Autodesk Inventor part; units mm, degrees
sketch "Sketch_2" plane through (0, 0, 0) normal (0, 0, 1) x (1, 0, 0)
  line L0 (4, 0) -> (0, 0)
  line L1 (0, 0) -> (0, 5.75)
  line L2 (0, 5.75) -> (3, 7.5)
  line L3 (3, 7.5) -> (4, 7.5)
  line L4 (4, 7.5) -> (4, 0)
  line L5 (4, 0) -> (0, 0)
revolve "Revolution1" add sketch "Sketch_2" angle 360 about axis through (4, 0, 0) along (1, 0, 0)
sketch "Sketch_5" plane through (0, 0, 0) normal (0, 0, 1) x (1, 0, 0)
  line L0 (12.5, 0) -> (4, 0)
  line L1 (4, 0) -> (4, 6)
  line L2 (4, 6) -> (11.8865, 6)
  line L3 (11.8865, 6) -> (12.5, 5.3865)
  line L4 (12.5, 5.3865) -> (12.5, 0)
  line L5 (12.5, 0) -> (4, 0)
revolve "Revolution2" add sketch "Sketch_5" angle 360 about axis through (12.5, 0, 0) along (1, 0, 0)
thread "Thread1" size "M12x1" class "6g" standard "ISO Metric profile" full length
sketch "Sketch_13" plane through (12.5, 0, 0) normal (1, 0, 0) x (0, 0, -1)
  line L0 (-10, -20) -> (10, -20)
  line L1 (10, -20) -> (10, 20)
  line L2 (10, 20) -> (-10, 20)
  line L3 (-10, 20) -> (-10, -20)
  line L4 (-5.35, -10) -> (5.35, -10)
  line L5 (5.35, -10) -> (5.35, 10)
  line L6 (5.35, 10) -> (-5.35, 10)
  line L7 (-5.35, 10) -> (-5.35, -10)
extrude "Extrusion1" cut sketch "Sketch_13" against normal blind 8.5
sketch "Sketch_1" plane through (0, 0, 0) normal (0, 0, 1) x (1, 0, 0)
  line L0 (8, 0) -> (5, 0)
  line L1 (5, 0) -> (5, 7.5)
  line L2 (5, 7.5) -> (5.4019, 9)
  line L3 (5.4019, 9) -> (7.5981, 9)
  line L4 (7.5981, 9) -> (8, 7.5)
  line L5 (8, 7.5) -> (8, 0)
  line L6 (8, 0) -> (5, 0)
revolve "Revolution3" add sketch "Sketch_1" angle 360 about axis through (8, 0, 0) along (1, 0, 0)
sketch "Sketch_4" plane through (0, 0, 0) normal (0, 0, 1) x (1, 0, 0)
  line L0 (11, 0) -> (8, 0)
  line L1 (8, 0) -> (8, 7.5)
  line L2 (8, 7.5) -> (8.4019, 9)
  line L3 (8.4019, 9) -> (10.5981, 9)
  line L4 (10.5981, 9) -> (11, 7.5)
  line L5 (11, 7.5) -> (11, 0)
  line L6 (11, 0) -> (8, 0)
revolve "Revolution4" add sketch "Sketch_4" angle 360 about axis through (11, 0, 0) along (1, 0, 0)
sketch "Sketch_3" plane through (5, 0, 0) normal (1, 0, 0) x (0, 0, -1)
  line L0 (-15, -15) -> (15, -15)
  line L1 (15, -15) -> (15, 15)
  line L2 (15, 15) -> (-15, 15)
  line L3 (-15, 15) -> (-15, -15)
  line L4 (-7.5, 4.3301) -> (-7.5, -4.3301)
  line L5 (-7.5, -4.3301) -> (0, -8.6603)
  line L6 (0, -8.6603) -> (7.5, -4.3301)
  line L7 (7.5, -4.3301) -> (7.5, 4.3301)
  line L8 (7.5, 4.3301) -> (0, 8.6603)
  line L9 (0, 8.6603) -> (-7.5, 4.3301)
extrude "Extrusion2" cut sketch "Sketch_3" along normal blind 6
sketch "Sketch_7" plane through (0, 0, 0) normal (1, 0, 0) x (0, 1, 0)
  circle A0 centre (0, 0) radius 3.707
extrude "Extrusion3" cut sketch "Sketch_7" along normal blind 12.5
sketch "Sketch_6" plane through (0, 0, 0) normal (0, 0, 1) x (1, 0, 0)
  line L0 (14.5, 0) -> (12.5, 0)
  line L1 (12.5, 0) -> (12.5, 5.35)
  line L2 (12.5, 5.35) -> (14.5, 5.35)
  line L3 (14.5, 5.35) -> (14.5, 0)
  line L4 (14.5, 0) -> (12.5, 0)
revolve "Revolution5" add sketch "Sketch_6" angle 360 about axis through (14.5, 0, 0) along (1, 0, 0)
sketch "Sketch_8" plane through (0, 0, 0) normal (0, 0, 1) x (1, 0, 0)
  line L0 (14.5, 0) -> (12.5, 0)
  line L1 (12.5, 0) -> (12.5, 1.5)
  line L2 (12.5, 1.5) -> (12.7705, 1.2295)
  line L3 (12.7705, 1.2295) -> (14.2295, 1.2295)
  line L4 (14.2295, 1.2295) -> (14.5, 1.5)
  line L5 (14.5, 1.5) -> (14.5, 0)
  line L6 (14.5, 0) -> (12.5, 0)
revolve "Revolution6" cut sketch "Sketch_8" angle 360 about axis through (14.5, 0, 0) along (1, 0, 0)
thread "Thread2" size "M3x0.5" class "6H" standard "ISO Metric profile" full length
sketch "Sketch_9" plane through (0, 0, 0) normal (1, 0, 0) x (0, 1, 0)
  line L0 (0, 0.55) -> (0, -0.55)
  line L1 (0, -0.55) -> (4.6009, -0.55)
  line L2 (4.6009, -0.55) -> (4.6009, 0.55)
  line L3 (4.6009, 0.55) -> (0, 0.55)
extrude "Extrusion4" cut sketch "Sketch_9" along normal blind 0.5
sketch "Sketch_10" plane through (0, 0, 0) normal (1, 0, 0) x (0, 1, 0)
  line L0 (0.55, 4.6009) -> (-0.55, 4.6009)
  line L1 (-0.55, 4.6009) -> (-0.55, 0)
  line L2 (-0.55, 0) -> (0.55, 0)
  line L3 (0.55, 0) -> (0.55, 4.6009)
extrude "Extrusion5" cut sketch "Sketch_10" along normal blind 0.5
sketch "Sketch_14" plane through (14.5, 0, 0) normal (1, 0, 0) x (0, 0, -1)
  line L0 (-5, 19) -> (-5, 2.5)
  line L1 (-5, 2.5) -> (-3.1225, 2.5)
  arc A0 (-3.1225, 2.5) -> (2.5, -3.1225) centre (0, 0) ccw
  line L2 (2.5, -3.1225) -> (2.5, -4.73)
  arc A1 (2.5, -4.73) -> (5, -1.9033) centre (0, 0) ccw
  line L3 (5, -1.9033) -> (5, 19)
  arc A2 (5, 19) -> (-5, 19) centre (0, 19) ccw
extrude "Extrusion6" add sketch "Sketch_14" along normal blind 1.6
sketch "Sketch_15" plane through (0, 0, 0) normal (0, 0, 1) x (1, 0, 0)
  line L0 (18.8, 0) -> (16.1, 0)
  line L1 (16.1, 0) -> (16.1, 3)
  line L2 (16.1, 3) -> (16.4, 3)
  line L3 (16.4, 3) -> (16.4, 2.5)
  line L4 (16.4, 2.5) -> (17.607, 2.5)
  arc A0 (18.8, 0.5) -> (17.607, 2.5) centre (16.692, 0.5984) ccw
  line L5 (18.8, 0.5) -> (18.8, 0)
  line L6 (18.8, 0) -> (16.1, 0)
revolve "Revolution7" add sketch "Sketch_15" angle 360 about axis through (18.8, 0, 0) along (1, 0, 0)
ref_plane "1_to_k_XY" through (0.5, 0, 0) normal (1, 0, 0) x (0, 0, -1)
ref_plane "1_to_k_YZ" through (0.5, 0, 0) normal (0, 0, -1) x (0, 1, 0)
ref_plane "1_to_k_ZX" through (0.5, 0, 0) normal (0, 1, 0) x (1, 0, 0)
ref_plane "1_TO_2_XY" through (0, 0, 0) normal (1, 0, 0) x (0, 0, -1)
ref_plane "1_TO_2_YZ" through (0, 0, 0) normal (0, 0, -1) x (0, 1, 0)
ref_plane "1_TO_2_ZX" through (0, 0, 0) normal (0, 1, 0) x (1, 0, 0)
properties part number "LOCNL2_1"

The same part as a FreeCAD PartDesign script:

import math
import FreeCAD as App
import Part
import Sketcher
Q = App.Units.Quantity

doc = App.newDocument("Part")
params = doc.addObject("Spreadsheet::Sheet", "Params")
for row, (alias, value) in enumerate([
    ("sketch1_width", "4 mm"),
    ("sketch1_width2", "1 mm"),
    ("sketch1_height", "7.5 mm"),
    ("sketch1_height2", "5.75 mm"),
    ("revolution_angle", "360 deg"),
    ("sketch2_height", "6 mm"),
    ("sketch2_width", "8.5 mm"),
    ("revolution2_angle", "360 deg"),
    ("sketch3_width", "40 mm"),
    ("sketch3_width2", "20 mm"),
    ("sketch3_height", "10.7 mm"),
    ("pocket1_length", "8.5 mm"),
    ("sketch4_width", "3 mm"),
    ("sketch4_height", "7.5 mm"),
    ("revolution3_angle", "360 deg"),
    ("sketch5_width", "3 mm"),
    ("sketch5_height", "7.5 mm"),
    ("revolution4_angle", "360 deg"),
    ("sketch6_width", "30 mm"),
    ("pocket2_length", "6 mm"),
    ("pocket3_length", "12.5 mm"),
    ("sketch8_width", "2 mm"),
    ("sketch8_height", "5.35 mm"),
    ("revolution5_angle", "360 deg"),
    ("sketch9_width", "2 mm"),
    ("sketch9_height", "1.5 mm"),
    ("groove_angle", "360 deg"),
    ("sketch10_height", "1.1 mm"),
    ("pocket4_length", "0.5 mm"),
    ("sketch11_width", "1.1 mm"),
    ("pocket5_length", "0.5 mm"),
    ("sketch12_radius", "5 mm"),
    ("sketch12_radius2", "4 mm"),
    ("sketch12_radius3", "5.35 mm"),
    ("sketch12_width", "16.5 mm"),
    ("pad1_length", "1.6 mm"),
    ("sketch13_height", "3 mm"),
    ("sketch13_width", "2.7 mm"),
    ("sketch13_width2", "0.3 mm"),
    ("sketch13_height2", "0.5 mm"),
    ("revolution6_angle", "360 deg"),
], start=1):
    params.set(f"A{row}", alias)
    params.set(f"B{row}", "=" + value)
    params.setAlias(f"B{row}", alias)

body = doc.addObject("PartDesign::Body", "Body")

# Sketch on XY plane
sketch1 = doc.addObject("Sketcher::SketchObject", "Sketch")
body.addObject(sketch1)
sketch1.AttachmentSupport = (doc.XY_Plane, [""])
sketch1.MapMode = "FlatFace"
sketch1.addGeometry([
    Part.LineSegment(App.Vector(0, 0, 0), App.Vector(4, 0, 0)),  # 0
    Part.LineSegment(App.Vector(4, 0, 0), App.Vector(4, 7.5, 0)),  # 1
    Part.LineSegment(App.Vector(4, 7.5, 0), App.Vector(3, 7.5, 0)),  # 2
    Part.LineSegment(App.Vector(3, 7.5, 0), App.Vector(0, 5.8, 0)),  # 3
    Part.LineSegment(App.Vector(0, 5.8, 0), App.Vector(0, 0, 0)),  # 4
], False)
sketch1.addConstraint([
    Sketcher.Constraint("Coincident", 0, 2, 1, 1),
    Sketcher.Constraint("Coincident", 1, 2, 2, 1),
    Sketcher.Constraint("Coincident", 2, 2, 3, 1),
    Sketcher.Constraint("Coincident", 3, 2, 4, 1),
    Sketcher.Constraint("Coincident", 4, 2, 0, 1),
    Sketcher.Constraint("Horizontal", 0),
    Sketcher.Constraint("Vertical", 1),
    Sketcher.Constraint("Horizontal", 2),
    Sketcher.Constraint("Vertical", 4),
    Sketcher.Constraint("Coincident", 4, 2, -1, 1),
    Sketcher.Constraint("DistanceX", 0, 1, 0, 2, Q("4 mm")),
    Sketcher.Constraint("DistanceX", 2, 2, 2, 1, Q("1 mm")),
    Sketcher.Constraint("DistanceY", 1, 1, 1, 2, Q("7.5 mm")),
    Sketcher.Constraint("DistanceY", 4, 2, 4, 1, Q("5.75 mm")),
])
sketch1.setExpression("Constraints[10]", "Params.sketch1_width")
sketch1.setExpression("Constraints[11]", "Params.sketch1_width2")
sketch1.setExpression("Constraints[12]", "Params.sketch1_height")
sketch1.setExpression("Constraints[13]", "Params.sketch1_height2")
revolution = doc.addObject("PartDesign::Revolution", "Revolution")
body.addObject(revolution)
revolution.Profile = sketch1
revolution.ReferenceAxis = (sketch1, ["H_Axis"])
revolution.setExpression("Angle", "Params.revolution_angle")

# Sketch on XY plane
sketch2 = doc.addObject("Sketcher::SketchObject", "Sketch001")
body.addObject(sketch2)
sketch2.AttachmentSupport = (doc.XY_Plane, [""])
sketch2.MapMode = "FlatFace"
sketch2.addGeometry([
    Part.LineSegment(App.Vector(4, 0, 0), App.Vector(12.5, 0, 0)),  # 0
    Part.LineSegment(App.Vector(12.5, 0, 0), App.Vector(12.5, 5.4, 0)),  # 1
    Part.LineSegment(App.Vector(12.5, 5.4, 0), App.Vector(11.9, 6, 0)),  # 2
    Part.LineSegment(App.Vector(11.9, 6, 0), App.Vector(4, 6, 0)),  # 3
    Part.LineSegment(App.Vector(4, 6, 0), App.Vector(4, 0, 0)),  # 4
], False)
sketch2.addConstraint([
    Sketcher.Constraint("Coincident", 0, 2, 1, 1),
    Sketcher.Constraint("Coincident", 1, 2, 2, 1),
    Sketcher.Constraint("Coincident", 2, 2, 3, 1),
    Sketcher.Constraint("Coincident", 3, 2, 4, 1),
    Sketcher.Constraint("Coincident", 4, 2, 0, 1),
    Sketcher.Constraint("Horizontal", 0),
    Sketcher.Constraint("Vertical", 1),
    Sketcher.Constraint("Horizontal", 3),
    Sketcher.Constraint("Vertical", 4),
    Sketcher.Constraint("PointOnObject", 0, 2, -1),
    Sketcher.Constraint("DistanceY", 4, 2, 4, 1, Q("6 mm")),
    Sketcher.Constraint("Angle", 2, Q("135 deg")),
    Sketcher.Constraint("DistanceX", 0, 1, 0, 2, Q("8.5 mm")),
    Sketcher.Constraint("DistanceX", -1, 1, 3, 2, Q("4 mm")),
    Sketcher.Constraint("DistanceX", 3, 2, 3, 1, Q("7.8865 mm")),
])
sketch2.setExpression("Constraints[10]", "Params.sketch2_height")
sketch2.setExpression("Constraints[12]", "Params.sketch2_width")
revolution2 = doc.addObject("PartDesign::Revolution", "Revolution001")
body.addObject(revolution2)
revolution2.Profile = sketch2
revolution2.ReferenceAxis = (sketch2, ["H_Axis"])
revolution2.setExpression("Angle", "Params.revolution2_angle")

# Sketch on YZ plane
sketch3 = doc.addObject("Sketcher::SketchObject", "Sketch002")
body.addObject(sketch3)
sketch3.AttachmentSupport = (doc.YZ_Plane, [""])
sketch3.MapMode = "FlatFace"
sketch3.AttachmentOffset = App.Placement(App.Vector(0, 0, 12.5), App.Rotation())
sketch3.addGeometry([
    Part.LineSegment(App.Vector(20, 10, 0), App.Vector(-20, 10, 0)),  # 0
    Part.LineSegment(App.Vector(-20, 10, 0), App.Vector(-20, -10, 0)),  # 1
    Part.LineSegment(App.Vector(-20, -10, 0), App.Vector(20, -10, 0)),  # 2
    Part.LineSegment(App.Vector(20, -10, 0), App.Vector(20, 10, 0)),  # 3
    Part.LineSegment(App.Vector(-10, -5, 0), App.Vector(-10, 5, 0)),  # 4
    Part.LineSegment(App.Vector(-10, 5, 0), App.Vector(10, 5, 0)),  # 5
    Part.LineSegment(App.Vector(10, 5, 0), App.Vector(10, -5, 0)),  # 6
    Part.LineSegment(App.Vector(10, -5, 0), App.Vector(-10, -5, 0)),  # 7
], False)
sketch3.addConstraint([
    Sketcher.Constraint("Coincident", 0, 2, 1, 1),
    Sketcher.Constraint("Coincident", 1, 2, 2, 1),
    Sketcher.Constraint("Coincident", 2, 2, 3, 1),
    Sketcher.Constraint("Coincident", 3, 2, 0, 1),
    Sketcher.Constraint("Coincident", 4, 2, 5, 1),
    Sketcher.Constraint("Coincident", 5, 2, 6, 1),
    Sketcher.Constraint("Coincident", 6, 2, 7, 1),
    Sketcher.Constraint("Coincident", 7, 2, 4, 1),
    Sketcher.Constraint("Horizontal", 0),
    Sketcher.Constraint("Vertical", 1),
    Sketcher.Constraint("Horizontal", 2),
    Sketcher.Constraint("Vertical", 3),
    Sketcher.Constraint("Vertical", 4),
    Sketcher.Constraint("Horizontal", 5),
    Sketcher.Constraint("Vertical", 6),
    Sketcher.Constraint("Horizontal", 7),
    Sketcher.Constraint("Symmetric", 0, 2, 2, 2, -1, 1),
    Sketcher.Constraint("Symmetric", 4, 2, 6, 2, -1, 1),
    Sketcher.Constraint("Equal", 7, 1),
    Sketcher.Constraint("DistanceX", 0, 2, 0, 1, Q("40 mm")),
    Sketcher.Constraint("DistanceX", 5, 1, 5, 2, Q("20 mm")),
    Sketcher.Constraint("DistanceY", 4, 1, 4, 2, Q("10.7 mm")),
])
sketch3.setExpression("Constraints[19]", "Params.sketch3_width")
sketch3.setExpression("Constraints[20]", "Params.sketch3_width2")
sketch3.setExpression("Constraints[21]", "Params.sketch3_height")
pocket1 = doc.addObject("PartDesign::Pocket", "Pocket")
body.addObject(pocket1)
pocket1.Profile = sketch3
pocket1.setExpression("Length", "Params.pocket1_length")

# Sketch on XY plane
sketch4 = doc.addObject("Sketcher::SketchObject", "Sketch003")
body.addObject(sketch4)
sketch4.AttachmentSupport = (doc.XY_Plane, [""])
sketch4.MapMode = "FlatFace"
sketch4.addGeometry([
    Part.LineSegment(App.Vector(5, 0, 0), App.Vector(8, 0, 0)),  # 0
    Part.LineSegment(App.Vector(8, 0, 0), App.Vector(8, 7.5, 0)),  # 1
    Part.LineSegment(App.Vector(8, 7.5, 0), App.Vector(7.6, 9, 0)),  # 2
    Part.LineSegment(App.Vector(7.6, 9, 0), App.Vector(5.4, 9, 0)),  # 3
    Part.LineSegment(App.Vector(5.4, 9, 0), App.Vector(5, 7.5, 0)),  # 4
    Part.LineSegment(App.Vector(5, 7.5, 0), App.Vector(5, 0, 0)),  # 5
], False)
sketch4.addConstraint([
    Sketcher.Constraint("Coincident", 0, 2, 1, 1),
    Sketcher.Constraint("Coincident", 1, 2, 2, 1),
    Sketcher.Constraint("Coincident", 2, 2, 3, 1),
    Sketcher.Constraint("Coincident", 3, 2, 4, 1),
    Sketcher.Constraint("Coincident", 4, 2, 5, 1),
    Sketcher.Constraint("Coincident", 5, 2, 0, 1),
    Sketcher.Constraint("Horizontal", 0),
    Sketcher.Constraint("Vertical", 1),
    Sketcher.Constraint("Horizontal", 3),
    Sketcher.Constraint("Vertical", 5),
    Sketcher.Constraint("PointOnObject", 0, 2, -1),
    Sketcher.Constraint("Horizontal", 1, 2, 4, 2),
    Sketcher.Constraint("Equal", 2, 4),
    Sketcher.Constraint("DistanceX", 0, 1, 0, 2, Q("3 mm")),
    Sketcher.Constraint("Angle", 2, Q("104.9992 deg")),
    Sketcher.Constraint("DistanceY", 1, 1, 1, 2, Q("7.5 mm")),
    Sketcher.Constraint("DistanceX", -1, 1, 0, 2, Q("8 mm")),
    Sketcher.Constraint("DistanceY", -1, 1, 2, 2, Q("9 mm")),
])
sketch4.setExpression("Constraints[13]", "Params.sketch4_width")
sketch4.setExpression("Constraints[15]", "Params.sketch4_height")
revolution3 = doc.addObject("PartDesign::Revolution", "Revolution002")
body.addObject(revolution3)
revolution3.Profile = sketch4
revolution3.ReferenceAxis = (sketch4, ["H_Axis"])
revolution3.setExpression("Angle", "Params.revolution3_angle")

# Sketch on XY plane
sketch5 = doc.addObject("Sketcher::SketchObject", "Sketch004")
body.addObject(sketch5)
sketch5.AttachmentSupport = (doc.XY_Plane, [""])
sketch5.MapMode = "FlatFace"
sketch5.addGeometry([
    Part.LineSegment(App.Vector(8, 0, 0), App.Vector(11, 0, 0)),  # 0
    Part.LineSegment(App.Vector(11, 0, 0), App.Vector(11, 7.5, 0)),  # 1
    Part.LineSegment(App.Vector(11, 7.5, 0), App.Vector(10.6, 9, 0)),  # 2
    Part.LineSegment(App.Vector(10.6, 9, 0), App.Vector(8.4, 9, 0)),  # 3
    Part.LineSegment(App.Vector(8.4, 9, 0), App.Vector(8, 7.5, 0)),  # 4
    Part.LineSegment(App.Vector(8, 7.5, 0), App.Vector(8, 0, 0)),  # 5
], False)
sketch5.addConstraint([
    Sketcher.Constraint("Coincident", 0, 2, 1, 1),
    Sketcher.Constraint("Coincident", 1, 2, 2, 1),
    Sketcher.Constraint("Coincident", 2, 2, 3, 1),
    Sketcher.Constraint("Coincident", 3, 2, 4, 1),
    Sketcher.Constraint("Coincident", 4, 2, 5, 1),
    Sketcher.Constraint("Coincident", 5, 2, 0, 1),
    Sketcher.Constraint("Horizontal", 0),
    Sketcher.Constraint("Vertical", 1),
    Sketcher.Constraint("Horizontal", 3),
    Sketcher.Constraint("Vertical", 5),
    Sketcher.Constraint("PointOnObject", 0, 2, -1),
    Sketcher.Constraint("Horizontal", 1, 2, 4, 2),
    Sketcher.Constraint("Equal", 2, 4),
    Sketcher.Constraint("DistanceX", 0, 1, 0, 2, Q("3 mm")),
    Sketcher.Constraint("Angle", 2, Q("104.9992 deg")),
    Sketcher.Constraint("DistanceY", 1, 1, 1, 2, Q("7.5 mm")),
    Sketcher.Constraint("DistanceX", -1, 1, 0, 2, Q("11 mm")),
    Sketcher.Constraint("DistanceY", -1, 1, 2, 2, Q("9 mm")),
])
sketch5.setExpression("Constraints[13]", "Params.sketch5_width")
sketch5.setExpression("Constraints[15]", "Params.sketch5_height")
revolution4 = doc.addObject("PartDesign::Revolution", "Revolution003")
body.addObject(revolution4)
revolution4.Profile = sketch5
revolution4.ReferenceAxis = (sketch5, ["H_Axis"])
revolution4.setExpression("Angle", "Params.revolution4_angle")

# Sketch on YZ plane
sketch6 = doc.addObject("Sketcher::SketchObject", "Sketch005")
body.addObject(sketch6)
sketch6.AttachmentSupport = (doc.YZ_Plane, [""])
sketch6.MapMode = "FlatFace"
sketch6.AttachmentOffset = App.Placement(App.Vector(0, 0, 5), App.Rotation())
sketch6.addGeometry([
    Part.LineSegment(App.Vector(15, 15, 0), App.Vector(-15, 15, 0)),  # 0
    Part.LineSegment(App.Vector(-15, 15, 0), App.Vector(-15, -15, 0)),  # 1
    Part.LineSegment(App.Vector(-15, -15, 0), App.Vector(15, -15, 0)),  # 2
    Part.LineSegment(App.Vector(15, -15, 0), App.Vector(15, 15, 0)),  # 3
    Part.LineSegment(App.Vector(-4, 8, 0), App.Vector(4, 8, 0)),  # 4
    Part.LineSegment(App.Vector(4, 8, 0), App.Vector(9, 0, 0)),  # 5
    Part.LineSegment(App.Vector(9, 0, 0), App.Vector(4, -8, 0)),  # 6
    Part.LineSegment(App.Vector(4, -8, 0), App.Vector(-4, -8, 0)),  # 7
    Part.LineSegment(App.Vector(-4, -8, 0), App.Vector(-9, 0, 0)),  # 8
    Part.LineSegment(App.Vector(-9, 0, 0), App.Vector(-4, 8, 0)),  # 9
], False)
sketch6.addConstraint([
    Sketcher.Constraint("Coincident", 0, 2, 1, 1),
    Sketcher.Constraint("Coincident", 1, 2, 2, 1),
    Sketcher.Constraint("Coincident", 2, 2, 3, 1),
    Sketcher.Constraint("Coincident", 3, 2, 0, 1),
    Sketcher.Constraint("Coincident", 4, 2, 5, 1),
    Sketcher.Constraint("Coincident", 5, 2, 6, 1),
    Sketcher.Constraint("Coincident", 6, 2, 7, 1),
    Sketcher.Constraint("Coincident", 7, 2, 8, 1),
    Sketcher.Constraint("Coincident", 8, 2, 9, 1),
    Sketcher.Constraint("Coincident", 9, 2, 4, 1),
    Sketcher.Constraint("Horizontal", 0),
    Sketcher.Constraint("Vertical", 1),
    Sketcher.Constraint("Horizontal", 2),
    Sketcher.Constraint("Vertical", 3),
    Sketcher.Constraint("Horizontal", 4),
    Sketcher.Constraint("Horizontal", 7),
    Sketcher.Constraint("Symmetric", 0, 2, 2, 2, -1, 1),
    Sketcher.Constraint("Symmetric", 4, 2, 7, 2, -1, 1),
    Sketcher.Constraint("Symmetric", 5, 2, 8, 2, -1, 1),
    Sketcher.Constraint("PointOnObject", 5, 2, -1),
    Sketcher.Constraint("Parallel", 6, 9),
    Sketcher.Constraint("Vertical", 4, 2, 6, 2),
    Sketcher.Constraint("Equal", 2, 1),
    Sketcher.Constraint("DistanceX", 0, 2, 0, 1, Q("30 mm")),
    Sketcher.Constraint("Angle", 5, Q("-59.9996 deg")),
    Sketcher.Constraint("DistanceY", 6, 2, 4, 2, Q("15 mm")),
    Sketcher.Constraint("DistanceX", -1, 1, 4, 2, Q("4.33 mm")),
])
sketch6.setExpression("Constraints[23]", "Params.sketch6_width")
pocket2 = doc.addObject("PartDesign::Pocket", "Pocket001")
body.addObject(pocket2)
pocket2.Profile = sketch6
pocket2.setExpression("Length", "Params.pocket2_length")
pocket2.Reversed = True

# Sketch on YZ plane
sketch7 = doc.addObject("Sketcher::SketchObject", "Sketch006")
body.addObject(sketch7)
sketch7.AttachmentSupport = (doc.YZ_Plane, [""])
sketch7.MapMode = "FlatFace"
sketch7.addGeometry(Part.Circle(App.Vector(0, 0, 0), App.Vector(0, 0, 1), 3.7), False)
sketch7.addConstraint([
    Sketcher.Constraint("Coincident", 0, 3, -1, 1),
    Sketcher.Constraint("Diameter", 0, Q("7.414 mm")),
])
pocket3 = doc.addObject("PartDesign::Pocket", "Pocket002")
body.addObject(pocket3)
pocket3.Profile = sketch7
pocket3.setExpression("Length", "Params.pocket3_length")
pocket3.Reversed = True

# Sketch on XY plane
sketch8 = doc.addObject("Sketcher::SketchObject", "Sketch007")
body.addObject(sketch8)
sketch8.AttachmentSupport = (doc.XY_Plane, [""])
sketch8.MapMode = "FlatFace"
sketch8.addGeometry([
    Part.LineSegment(App.Vector(12.5, 0, 0), App.Vector(14.5, 0, 0)),
    Part.LineSegment(App.Vector(14.5, 0, 0), App.Vector(14.5, 5.3, 0)),
    Part.LineSegment(App.Vector(14.5, 5.3, 0), App.Vector(12.5, 5.3, 0)),
    Part.LineSegment(App.Vector(12.5, 5.3, 0), App.Vector(12.5, 0, 0)),
], False)
sketch8.addConstraint([
    Sketcher.Constraint("Coincident", 0, 2, 1, 1),
    Sketcher.Constraint("Coincident", 1, 2, 2, 1),
    Sketcher.Constraint("Coincident", 2, 2, 3, 1),
    Sketcher.Constraint("Coincident", 3, 2, 0, 1),
    Sketcher.Constraint("Horizontal", 0),
    Sketcher.Constraint("Vertical", 1),
    Sketcher.Constraint("Horizontal", 2),
    Sketcher.Constraint("Vertical", 3),
    Sketcher.Constraint("PointOnObject", 0, 2, -1),
    Sketcher.Constraint("DistanceX", 0, 1, 0, 2, Q("2 mm")),
    Sketcher.Constraint("DistanceY", 1, 1, 1, 2, Q("5.35 mm")),
    Sketcher.Constraint("DistanceX", -1, 1, 0, 2, Q("14.5 mm")),
])
sketch8.setExpression("Constraints[9]", "Params.sketch8_width")
sketch8.setExpression("Constraints[10]", "Params.sketch8_height")
revolution5 = doc.addObject("PartDesign::Revolution", "Revolution004")
body.addObject(revolution5)
revolution5.Profile = sketch8
revolution5.ReferenceAxis = (sketch8, ["H_Axis"])
revolution5.setExpression("Angle", "Params.revolution5_angle")

# Sketch on XY plane
sketch9 = doc.addObject("Sketcher::SketchObject", "Sketch008")
body.addObject(sketch9)
sketch9.AttachmentSupport = (doc.XY_Plane, [""])
sketch9.MapMode = "FlatFace"
sketch9.addGeometry([
    Part.LineSegment(App.Vector(12.5, 0, 0), App.Vector(14.5, 0, 0)),  # 0
    Part.LineSegment(App.Vector(14.5, 0, 0), App.Vector(14.5, 1.5, 0)),  # 1
    Part.LineSegment(App.Vector(14.5, 1.5, 0), App.Vector(14.23, 1.23, 0)),  # 2
    Part.LineSegment(App.Vector(14.23, 1.23, 0), App.Vector(12.77, 1.23, 0)),  # 3
    Part.LineSegment(App.Vector(12.77, 1.23, 0), App.Vector(12.5, 1.5, 0)),  # 4
    Part.LineSegment(App.Vector(12.5, 1.5, 0), App.Vector(12.5, 0, 0)),  # 5
], False)
sketch9.addConstraint([
    Sketcher.Constraint("Coincident", 0, 2, 1, 1),
    Sketcher.Constraint("Coincident", 1, 2, 2, 1),
    Sketcher.Constraint("Coincident", 2, 2, 3, 1),
    Sketcher.Constraint("Coincident", 3, 2, 4, 1),
    Sketcher.Constraint("Coincident", 4, 2, 5, 1),
    Sketcher.Constraint("Coincident", 5, 2, 0, 1),
    Sketcher.Constraint("Horizontal", 0),
    Sketcher.Constraint("Vertical", 1),
    Sketcher.Constraint("Horizontal", 3),
    Sketcher.Constraint("Vertical", 5),
    Sketcher.Constraint("PointOnObject", 0, 2, -1),
    Sketcher.Constraint("Perpendicular", 2, 4),
    Sketcher.Constraint("Horizontal", 1, 2, 4, 2),
    Sketcher.Constraint("Equal", 2, 4),
    Sketcher.Constraint("DistanceX", 0, 1, 0, 2, Q("2 mm")),
    Sketcher.Constraint("DistanceY", 1, 1, 1, 2, Q("1.5 mm")),
    Sketcher.Constraint("DistanceX", -1, 1, 0, 2, Q("14.5 mm")),
    Sketcher.Constraint("DistanceX", 3, 2, 3, 1, Q("1.459 mm")),
])
sketch9.setExpression("Constraints[14]", "Params.sketch9_width")
sketch9.setExpression("Constraints[15]", "Params.sketch9_height")
groove = doc.addObject("PartDesign::Groove", "Groove")
body.addObject(groove)
groove.Profile = sketch9
groove.ReferenceAxis = (sketch9, ["H_Axis"])
groove.setExpression("Angle", "Params.groove_angle")

# Sketch on YZ plane
sketch10 = doc.addObject("Sketcher::SketchObject", "Sketch009")
body.addObject(sketch10)
sketch10.AttachmentSupport = (doc.YZ_Plane, [""])
sketch10.MapMode = "FlatFace"
sketch10.addGeometry([
    Part.LineSegment(App.Vector(4.6, 0.6, 0), App.Vector(0, 0.6, 0)),
    Part.LineSegment(App.Vector(0, 0.6, 0), App.Vector(0, -0.6, 0)),
    Part.LineSegment(App.Vector(0, -0.6, 0), App.Vector(4.6, -0.6, 0)),
    Part.LineSegment(App.Vector(4.6, -0.6, 0), App.Vector(4.6, 0.6, 0)),
], False)
sketch10.addConstraint([
    Sketcher.Constraint("Coincident", 0, 2, 1, 1),
    Sketcher.Constraint("Coincident", 1, 2, 2, 1),
    Sketcher.Constraint("Coincident", 2, 2, 3, 1),
    Sketcher.Constraint("Coincident", 3, 2, 0, 1),
    Sketcher.Constraint("Horizontal", 0),
    Sketcher.Constraint("Vertical", 1),
    Sketcher.Constraint("Horizontal", 2),
    Sketcher.Constraint("Vertical", 3),
    Sketcher.Constraint("Symmetric", 0, 2, 1, 2, -1, 1),
    Sketcher.Constraint("DistanceY", 1, 2, 1, 1, Q("1.1 mm")),
    Sketcher.Constraint("DistanceX", 0, 2, 0, 1, Q("4.601 mm")),
])
sketch10.setExpression("Constraints[9]", "Params.sketch10_height")
pocket4 = doc.addObject("PartDesign::Pocket", "Pocket003")
body.addObject(pocket4)
pocket4.Profile = sketch10
pocket4.setExpression("Length", "Params.pocket4_length")
pocket4.Reversed = True

# Sketch on YZ plane
sketch11 = doc.addObject("Sketcher::SketchObject", "Sketch010")
body.addObject(sketch11)
sketch11.AttachmentSupport = (doc.YZ_Plane, [""])
sketch11.MapMode = "FlatFace"
sketch11.addGeometry([
    Part.LineSegment(App.Vector(0.6, 0, 0), App.Vector(0.6, 4.6, 0)),
    Part.LineSegment(App.Vector(0.6, 4.6, 0), App.Vector(-0.6, 4.6, 0)),
    Part.LineSegment(App.Vector(-0.6, 4.6, 0), App.Vector(-0.6, 0, 0)),
    Part.LineSegment(App.Vector(-0.6, 0, 0), App.Vector(0.6, 0, 0)),
], False)
sketch11.addConstraint([
    Sketcher.Constraint("Coincident", 0, 2, 1, 1),
    Sketcher.Constraint("Coincident", 1, 2, 2, 1),
    Sketcher.Constraint("Coincident", 2, 2, 3, 1),
    Sketcher.Constraint("Coincident", 3, 2, 0, 1),
    Sketcher.Constraint("Vertical", 0),
    Sketcher.Constraint("Horizontal", 1),
    Sketcher.Constraint("Vertical", 2),
    Sketcher.Constraint("Horizontal", 3),
    Sketcher.Constraint("Symmetric", 2, 2, 3, 2, -1, 1),
    Sketcher.Constraint("DistanceX", 1, 2, 1, 1, Q("1.1 mm")),
    Sketcher.Constraint("DistanceY", 0, 1, 0, 2, Q("4.601 mm")),
])
sketch11.setExpression("Constraints[9]", "Params.sketch11_width")
pocket5 = doc.addObject("PartDesign::Pocket", "Pocket004")
body.addObject(pocket5)
pocket5.Profile = sketch11
pocket5.setExpression("Length", "Params.pocket5_length")
pocket5.Reversed = True

# Sketch on YZ plane
sketch12 = doc.addObject("Sketcher::SketchObject", "Sketch011")
body.addObject(sketch12)
sketch12.AttachmentSupport = (doc.YZ_Plane, [""])
sketch12.MapMode = "FlatFace"
sketch12.AttachmentOffset = App.Placement(App.Vector(0, 0, 14.5), App.Rotation())
sketch12.addGeometry([
    Part.ArcOfCircle(Part.Circle(App.Vector(19, 0, 0), App.Vector(0, 0, 1), 5), math.radians(-90), math.radians(90)),  # 0
    Part.LineSegment(App.Vector(19, 5, 0), App.Vector(2.5, 5, 0)),  # 1
    Part.LineSegment(App.Vector(2.5, 5, 0), App.Vector(2.5, 3.1, 0)),  # 2
    Part.ArcOfCircle(Part.Circle(App.Vector(0, 0, 0), App.Vector(0, 0, 1), 4), math.radians(51), math.radians(219)),  # 3
    Part.LineSegment(App.Vector(-3.1, -2.5, 0), App.Vector(-4.7, -2.5, 0)),  # 4
    Part.ArcOfCircle(Part.Circle(App.Vector(0, 0, 0), App.Vector(0, 0, 1), 5.4), math.radians(-152), math.radians(-111)),  # 5
    Part.LineSegment(App.Vector(-1.9, -5, 0), App.Vector(19, -5, 0)),  # 6
], False)
sketch12.addConstraint([
    Sketcher.Constraint("Tangent", 0, 2, 1, 1),
    Sketcher.Constraint("Coincident", 1, 2, 2, 1),
    Sketcher.Constraint("Coincident", 2, 2, 3, 1),
    Sketcher.Constraint("Coincident", 3, 2, 4, 1),
    Sketcher.Constraint("Coincident", 4, 2, 5, 1),
    Sketcher.Constraint("Coincident", 5, 2, 6, 1),
    Sketcher.Constraint("Tangent", 6, 2, 0, 1),
    Sketcher.Constraint("Horizontal", 1),
    Sketcher.Constraint("Vertical", 2),
    Sketcher.Constraint("Horizontal", 4),
    Sketcher.Constraint("Horizontal", 6),
    Sketcher.Constraint("Coincident", 3, 3, -1, 1),
    Sketcher.Constraint("Coincident", 5, 3, -1, 1),
    Sketcher.Constraint("PointOnObject", 0, 3, -1),
    Sketcher.Constraint("Radius", 0, Q("5 mm")),
    Sketcher.Constraint("Radius", 3, Q("4 mm")),
    Sketcher.Constraint("Radius", 5, Q("5.35 mm")),
    Sketcher.Constraint("DistanceX", 1, 2, 1, 1, Q("16.5 mm")),
    Sketcher.Constraint("DistanceX", -1, 1, 0, 3, Q("19 mm")),
    Sketcher.Constraint("DistanceY", 3, 2, -1, 1, Q("2.5 mm")),
])
sketch12.setExpression("Constraints[14]", "Params.sketch12_radius")
sketch12.setExpression("Constraints[15]", "Params.sketch12_radius2")
sketch12.setExpression("Constraints[16]", "Params.sketch12_radius3")
sketch12.setExpression("Constraints[17]", "Params.sketch12_width")
pad1 = doc.addObject("PartDesign::Pad", "Pad")
body.addObject(pad1)
pad1.Profile = sketch12
pad1.setExpression("Length", "Params.pad1_length")

# Sketch on XY plane
sketch13 = doc.addObject("Sketcher::SketchObject", "Sketch012")
body.addObject(sketch13)
sketch13.AttachmentSupport = (doc.XY_Plane, [""])
sketch13.MapMode = "FlatFace"
sketch13.addGeometry([
    Part.LineSegment(App.Vector(16.1, 0, 0), App.Vector(18.8, 0, 0)),  # 0
    Part.LineSegment(App.Vector(18.8, 0, 0), App.Vector(18.8, 0.5, 0)),  # 1
    Part.ArcOfCircle(Part.Circle(App.Vector(16.69, 0.6, 0), App.Vector(0, 0, 1), 2.11), math.radians(-3), math.radians(64)),  # 2
    Part.LineSegment(App.Vector(17.61, 2.5, 0), App.Vector(16.4, 2.5, 0)),  # 3
    Part.LineSegment(App.Vector(16.4, 2.5, 0), App.Vector(16.4, 3, 0)),  # 4
    Part.LineSegment(App.Vector(16.4, 3, 0), App.Vector(16.1, 3, 0)),  # 5
    Part.LineSegment(App.Vector(16.1, 3, 0), App.Vector(16.1, 0, 0)),  # 6
], False)
sketch13.addConstraint([
    Sketcher.Constraint("Coincident", 0, 2, 1, 1),
    Sketcher.Constraint("Coincident", 1, 2, 2, 1),
    Sketcher.Constraint("Coincident", 2, 2, 3, 1),
    Sketcher.Constraint("Coincident", 3, 2, 4, 1),
    Sketcher.Constraint("Coincident", 4, 2, 5, 1),
    Sketcher.Constraint("Coincident", 5, 2, 6, 1),
    Sketcher.Constraint("Coincident", 6, 2, 0, 1),
    Sketcher.Constraint("Horizontal", 0),
    Sketcher.Constraint("Vertical", 1),
    Sketcher.Constraint("Horizontal", 3),
    Sketcher.Constraint("Vertical", 4),
    Sketcher.Constraint("Horizontal", 5),
    Sketcher.Constraint("Vertical", 6),
    Sketcher.Constraint("PointOnObject", 0, 2, -1),
    Sketcher.Constraint("Equal", 1, 4),
    Sketcher.Constraint("DistanceY", 6, 2, 6, 1, Q("3 mm")),
    Sketcher.Constraint("DistanceX", 0, 1, 0, 2, Q("2.7 mm")),
    Sketcher.Constraint("DistanceX", 5, 2, 5, 1, Q("0.3 mm")),
    Sketcher.Constraint("DistanceY", 1, 1, 1, 2, Q("0.5 mm")),
    Sketcher.Constraint("DistanceX", -1, 1, 0, 2, Q("18.8 mm")),
    Sketcher.Constraint("Radius", 2, Q("2.1103 mm")),
    Sketcher.Constraint("DistanceX", 3, 2, 3, 1, Q("1.207 mm")),
])
sketch13.setExpression("Constraints[15]", "Params.sketch13_height")
sketch13.setExpression("Constraints[16]", "Params.sketch13_width")
sketch13.setExpression("Constraints[17]", "Params.sketch13_width2")
sketch13.setExpression("Constraints[18]", "Params.sketch13_height2")
revolution6 = doc.addObject("PartDesign::Revolution", "Revolution005")
body.addObject(revolution6)
revolution6.Profile = sketch13
revolution6.ReferenceAxis = (sketch13, ["H_Axis"])
revolution6.setExpression("Angle", "Params.revolution6_angle")

doc.recompute()
